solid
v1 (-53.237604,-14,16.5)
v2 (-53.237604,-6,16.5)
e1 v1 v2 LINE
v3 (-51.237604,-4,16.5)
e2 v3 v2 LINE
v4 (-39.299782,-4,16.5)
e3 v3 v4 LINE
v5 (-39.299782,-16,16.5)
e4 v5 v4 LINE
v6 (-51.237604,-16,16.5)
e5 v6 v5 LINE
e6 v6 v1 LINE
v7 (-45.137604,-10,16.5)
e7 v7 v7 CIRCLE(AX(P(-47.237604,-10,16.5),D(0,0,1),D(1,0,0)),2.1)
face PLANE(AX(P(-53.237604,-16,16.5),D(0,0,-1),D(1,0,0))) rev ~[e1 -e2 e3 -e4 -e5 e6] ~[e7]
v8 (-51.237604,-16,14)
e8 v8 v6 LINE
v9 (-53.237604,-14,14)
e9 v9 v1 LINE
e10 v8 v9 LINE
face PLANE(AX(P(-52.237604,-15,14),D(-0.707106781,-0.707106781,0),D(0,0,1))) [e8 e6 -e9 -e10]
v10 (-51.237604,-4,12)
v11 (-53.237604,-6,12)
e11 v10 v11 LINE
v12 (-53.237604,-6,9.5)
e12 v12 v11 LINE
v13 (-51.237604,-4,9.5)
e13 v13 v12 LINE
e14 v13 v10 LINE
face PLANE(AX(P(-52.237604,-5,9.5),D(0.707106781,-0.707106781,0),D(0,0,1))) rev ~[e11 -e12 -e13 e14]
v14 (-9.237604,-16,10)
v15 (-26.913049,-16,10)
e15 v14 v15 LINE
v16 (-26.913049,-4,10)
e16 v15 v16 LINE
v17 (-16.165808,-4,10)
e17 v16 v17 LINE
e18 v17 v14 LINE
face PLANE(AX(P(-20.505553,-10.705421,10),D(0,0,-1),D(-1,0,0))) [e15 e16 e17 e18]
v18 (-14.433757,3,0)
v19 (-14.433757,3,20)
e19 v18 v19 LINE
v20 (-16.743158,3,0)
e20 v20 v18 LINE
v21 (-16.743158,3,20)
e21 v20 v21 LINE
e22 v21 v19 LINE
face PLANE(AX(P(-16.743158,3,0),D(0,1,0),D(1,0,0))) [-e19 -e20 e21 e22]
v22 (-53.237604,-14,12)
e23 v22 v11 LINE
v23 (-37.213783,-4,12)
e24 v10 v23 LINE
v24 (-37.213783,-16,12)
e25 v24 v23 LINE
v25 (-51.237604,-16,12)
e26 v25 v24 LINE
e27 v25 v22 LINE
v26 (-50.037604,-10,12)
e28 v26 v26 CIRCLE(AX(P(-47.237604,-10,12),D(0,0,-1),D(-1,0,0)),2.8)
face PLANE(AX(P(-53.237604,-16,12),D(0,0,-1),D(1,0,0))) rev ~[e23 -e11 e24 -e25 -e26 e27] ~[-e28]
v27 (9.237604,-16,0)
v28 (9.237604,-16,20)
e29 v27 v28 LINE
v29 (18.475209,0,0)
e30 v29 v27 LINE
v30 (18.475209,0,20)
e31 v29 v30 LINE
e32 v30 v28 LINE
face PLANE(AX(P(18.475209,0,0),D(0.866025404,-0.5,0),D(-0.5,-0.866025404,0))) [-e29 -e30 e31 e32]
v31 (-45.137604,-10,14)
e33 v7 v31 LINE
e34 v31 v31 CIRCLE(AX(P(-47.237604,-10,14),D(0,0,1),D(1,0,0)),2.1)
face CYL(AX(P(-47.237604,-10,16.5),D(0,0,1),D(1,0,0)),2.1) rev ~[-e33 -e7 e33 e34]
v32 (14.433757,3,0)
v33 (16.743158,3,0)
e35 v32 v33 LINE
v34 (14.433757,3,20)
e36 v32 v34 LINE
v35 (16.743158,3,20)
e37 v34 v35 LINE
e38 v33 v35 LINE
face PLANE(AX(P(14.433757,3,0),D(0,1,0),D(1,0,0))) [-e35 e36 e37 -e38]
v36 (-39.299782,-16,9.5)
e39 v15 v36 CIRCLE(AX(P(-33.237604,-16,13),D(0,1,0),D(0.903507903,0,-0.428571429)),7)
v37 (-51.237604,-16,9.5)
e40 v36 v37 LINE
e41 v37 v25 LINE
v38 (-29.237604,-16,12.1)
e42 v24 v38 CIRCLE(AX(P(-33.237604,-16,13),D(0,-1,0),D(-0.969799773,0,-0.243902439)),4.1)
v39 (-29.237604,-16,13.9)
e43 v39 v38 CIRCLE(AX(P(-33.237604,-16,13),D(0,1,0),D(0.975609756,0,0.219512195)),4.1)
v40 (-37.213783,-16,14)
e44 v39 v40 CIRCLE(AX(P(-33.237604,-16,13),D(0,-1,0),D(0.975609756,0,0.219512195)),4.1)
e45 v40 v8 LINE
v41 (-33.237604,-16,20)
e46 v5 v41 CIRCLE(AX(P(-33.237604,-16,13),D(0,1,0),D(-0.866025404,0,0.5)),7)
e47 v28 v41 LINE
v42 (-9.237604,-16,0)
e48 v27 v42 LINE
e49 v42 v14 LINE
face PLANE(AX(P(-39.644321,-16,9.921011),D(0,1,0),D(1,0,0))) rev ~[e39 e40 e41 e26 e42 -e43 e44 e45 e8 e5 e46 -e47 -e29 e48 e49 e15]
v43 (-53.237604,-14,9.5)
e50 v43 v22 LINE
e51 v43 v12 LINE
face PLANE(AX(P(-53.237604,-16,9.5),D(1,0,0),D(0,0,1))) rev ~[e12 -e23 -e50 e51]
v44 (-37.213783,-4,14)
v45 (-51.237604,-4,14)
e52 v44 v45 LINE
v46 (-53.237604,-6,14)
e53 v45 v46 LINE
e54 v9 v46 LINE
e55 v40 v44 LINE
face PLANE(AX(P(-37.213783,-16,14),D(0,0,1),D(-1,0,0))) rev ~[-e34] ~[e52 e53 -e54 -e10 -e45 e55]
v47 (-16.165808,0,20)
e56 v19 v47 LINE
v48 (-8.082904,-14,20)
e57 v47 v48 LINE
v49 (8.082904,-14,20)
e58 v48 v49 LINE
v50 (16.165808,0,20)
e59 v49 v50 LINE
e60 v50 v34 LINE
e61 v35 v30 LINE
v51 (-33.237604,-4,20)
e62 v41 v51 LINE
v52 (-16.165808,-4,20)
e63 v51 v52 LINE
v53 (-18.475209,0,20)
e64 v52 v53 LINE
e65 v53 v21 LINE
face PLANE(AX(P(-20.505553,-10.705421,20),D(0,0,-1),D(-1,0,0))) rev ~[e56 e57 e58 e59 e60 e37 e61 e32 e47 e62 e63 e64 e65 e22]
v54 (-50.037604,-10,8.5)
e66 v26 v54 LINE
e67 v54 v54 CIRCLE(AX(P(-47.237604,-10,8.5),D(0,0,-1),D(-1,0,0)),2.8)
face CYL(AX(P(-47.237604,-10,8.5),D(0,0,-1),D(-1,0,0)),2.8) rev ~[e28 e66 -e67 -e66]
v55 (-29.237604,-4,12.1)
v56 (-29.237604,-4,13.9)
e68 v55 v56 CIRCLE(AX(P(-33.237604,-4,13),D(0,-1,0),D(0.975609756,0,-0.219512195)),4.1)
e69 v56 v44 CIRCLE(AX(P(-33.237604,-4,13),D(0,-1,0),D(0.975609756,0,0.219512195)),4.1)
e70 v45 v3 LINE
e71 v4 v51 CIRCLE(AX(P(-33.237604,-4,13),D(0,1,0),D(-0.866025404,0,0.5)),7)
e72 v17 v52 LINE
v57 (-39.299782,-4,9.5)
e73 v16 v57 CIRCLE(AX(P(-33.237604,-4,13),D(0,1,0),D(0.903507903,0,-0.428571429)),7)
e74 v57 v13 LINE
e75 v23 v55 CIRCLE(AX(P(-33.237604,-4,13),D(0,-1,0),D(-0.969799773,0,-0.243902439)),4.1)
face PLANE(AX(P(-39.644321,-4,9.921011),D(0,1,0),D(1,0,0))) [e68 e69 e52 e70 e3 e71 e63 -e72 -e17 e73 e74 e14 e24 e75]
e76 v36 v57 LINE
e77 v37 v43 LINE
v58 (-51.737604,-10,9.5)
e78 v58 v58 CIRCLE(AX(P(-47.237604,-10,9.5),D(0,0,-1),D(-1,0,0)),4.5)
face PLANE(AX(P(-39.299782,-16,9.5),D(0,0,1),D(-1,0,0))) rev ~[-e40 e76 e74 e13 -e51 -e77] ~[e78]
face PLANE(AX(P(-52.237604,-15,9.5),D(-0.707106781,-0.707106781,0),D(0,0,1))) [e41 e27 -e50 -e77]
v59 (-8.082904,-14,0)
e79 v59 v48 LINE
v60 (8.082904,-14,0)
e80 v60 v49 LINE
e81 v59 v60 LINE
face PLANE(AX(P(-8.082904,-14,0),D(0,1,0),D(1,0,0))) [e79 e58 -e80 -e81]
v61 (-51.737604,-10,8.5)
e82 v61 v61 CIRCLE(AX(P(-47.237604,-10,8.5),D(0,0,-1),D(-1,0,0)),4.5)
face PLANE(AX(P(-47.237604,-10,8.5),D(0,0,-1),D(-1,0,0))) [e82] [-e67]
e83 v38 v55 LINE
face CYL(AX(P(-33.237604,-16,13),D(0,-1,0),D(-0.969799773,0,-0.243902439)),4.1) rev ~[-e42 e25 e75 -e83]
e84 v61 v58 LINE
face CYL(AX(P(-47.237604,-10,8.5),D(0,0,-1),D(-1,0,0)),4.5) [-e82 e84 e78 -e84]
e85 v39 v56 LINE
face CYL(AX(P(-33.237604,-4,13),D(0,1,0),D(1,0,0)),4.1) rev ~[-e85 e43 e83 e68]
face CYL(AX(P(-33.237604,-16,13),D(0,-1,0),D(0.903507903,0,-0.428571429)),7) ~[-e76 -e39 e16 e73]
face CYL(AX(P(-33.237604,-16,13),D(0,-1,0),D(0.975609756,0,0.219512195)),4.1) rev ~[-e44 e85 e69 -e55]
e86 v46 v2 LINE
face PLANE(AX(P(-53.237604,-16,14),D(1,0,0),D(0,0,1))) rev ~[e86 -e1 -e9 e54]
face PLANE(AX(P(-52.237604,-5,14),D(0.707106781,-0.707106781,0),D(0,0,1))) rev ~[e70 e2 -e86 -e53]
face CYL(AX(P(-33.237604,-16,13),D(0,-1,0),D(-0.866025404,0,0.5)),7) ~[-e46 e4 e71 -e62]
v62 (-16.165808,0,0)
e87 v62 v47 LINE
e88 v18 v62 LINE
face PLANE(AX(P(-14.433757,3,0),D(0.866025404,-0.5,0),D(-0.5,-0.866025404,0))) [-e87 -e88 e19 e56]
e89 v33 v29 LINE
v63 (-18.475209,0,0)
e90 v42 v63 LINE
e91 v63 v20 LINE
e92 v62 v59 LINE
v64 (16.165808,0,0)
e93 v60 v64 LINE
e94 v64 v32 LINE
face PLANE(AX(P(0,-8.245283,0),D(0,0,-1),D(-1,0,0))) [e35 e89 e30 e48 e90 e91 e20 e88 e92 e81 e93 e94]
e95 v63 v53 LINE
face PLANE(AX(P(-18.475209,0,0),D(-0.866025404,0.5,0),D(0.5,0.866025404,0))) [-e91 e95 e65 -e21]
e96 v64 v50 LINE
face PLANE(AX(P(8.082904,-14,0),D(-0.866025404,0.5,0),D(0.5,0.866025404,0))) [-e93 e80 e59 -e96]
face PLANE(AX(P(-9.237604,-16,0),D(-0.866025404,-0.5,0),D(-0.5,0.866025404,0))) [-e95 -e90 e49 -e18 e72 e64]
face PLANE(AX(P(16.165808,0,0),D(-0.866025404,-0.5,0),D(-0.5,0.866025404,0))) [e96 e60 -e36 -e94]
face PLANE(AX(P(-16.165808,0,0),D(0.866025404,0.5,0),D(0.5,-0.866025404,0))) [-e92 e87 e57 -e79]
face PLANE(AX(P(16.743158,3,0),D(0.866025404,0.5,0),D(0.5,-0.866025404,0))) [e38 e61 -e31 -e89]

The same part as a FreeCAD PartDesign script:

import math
import FreeCAD as App
import Part
import Sketcher
Q = App.Units.Quantity


def edges_at(feature, points):
    """Names of the edges that pass closest to the given points."""
    edges = feature.Shape.Edges
    near = lambda p: min(range(len(edges)), key=lambda i: edges[i].distToShape(Part.Vertex(*p))[0])
    return sorted({f"Edge{near(p) + 1}" for p in points})

doc = App.newDocument("Part")
body = doc.addObject("PartDesign::Body", "Body")

# Sketch on XY plane
sketch1 = body.newObject("Sketcher::SketchObject", "Sketch")
sketch1.AttachmentSupport = (doc.getObject("XY_Plane"), [""])
sketch1.MapMode = "FlatFace"
sketch1.addGeometry(Part.LineSegment(App.Vector(-16.165808, 0, 0), App.Vector(-14.433757, 3, 0)), False)
sketch1.addGeometry(Part.LineSegment(App.Vector(-14.433757, 3, 0), App.Vector(-16.743158, 3, 0)), False)
sketch1.addGeometry(Part.LineSegment(App.Vector(-16.743158, 3, 0), App.Vector(-18.475209, 0, 0)), False)
sketch1.addGeometry(Part.LineSegment(App.Vector(-18.475209, 0, 0), App.Vector(-9.237604, -16, 0)), False)
sketch1.addGeometry(Part.LineSegment(App.Vector(-9.237604, -16, 0), App.Vector(9.237604, -16, 0)), False)
sketch1.addGeometry(Part.LineSegment(App.Vector(9.237604, -16, 0), App.Vector(18.475209, 0, 0)), False)
sketch1.addGeometry(Part.LineSegment(App.Vector(18.475209, 0, 0), App.Vector(16.743158, 3, 0)), False)
sketch1.addGeometry(Part.LineSegment(App.Vector(16.743158, 3, 0), App.Vector(14.433757, 3, 0)), False)
sketch1.addGeometry(Part.LineSegment(App.Vector(14.433757, 3, 0), App.Vector(16.165808, 0, 0)), False)
sketch1.addGeometry(Part.LineSegment(App.Vector(16.165808, 0, 0), App.Vector(8.082904, -14, 0)), False)
sketch1.addGeometry(Part.LineSegment(App.Vector(8.082904, -14, 0), App.Vector(-8.082904, -14, 0)), False)
sketch1.addGeometry(Part.LineSegment(App.Vector(-8.082904, -14, 0), App.Vector(-16.165808, 0, 0)), False)
sketch1.addConstraint(Sketcher.Constraint("Coincident", 0, 2, 1, 1))
sketch1.addConstraint(Sketcher.Constraint("Coincident", 1, 2, 2, 1))
sketch1.addConstraint(Sketcher.Constraint("Coincident", 2, 2, 3, 1))
sketch1.addConstraint(Sketcher.Constraint("Coincident", 3, 2, 4, 1))
sketch1.addConstraint(Sketcher.Constraint("Coincident", 4, 2, 5, 1))
sketch1.addConstraint(Sketcher.Constraint("Coincident", 5, 2, 6, 1))
sketch1.addConstraint(Sketcher.Constraint("Coincident", 6, 2, 7, 1))
sketch1.addConstraint(Sketcher.Constraint("Coincident", 7, 2, 8, 1))
sketch1.addConstraint(Sketcher.Constraint("Coincident", 8, 2, 9, 1))
sketch1.addConstraint(Sketcher.Constraint("Coincident", 9, 2, 10, 1))
sketch1.addConstraint(Sketcher.Constraint("Coincident", 10, 2, 11, 1))
sketch1.addConstraint(Sketcher.Constraint("Coincident", 11, 2, 0, 1))
sketch1.addConstraint(Sketcher.Constraint("Horizontal", 1))
sketch1.addConstraint(Sketcher.Constraint("Horizontal", 4))
sketch1.addConstraint(Sketcher.Constraint("Horizontal", 7))
sketch1.addConstraint(Sketcher.Constraint("Horizontal", 10))
sketch1.addConstraint(Sketcher.Constraint("Symmetric", 2, 2, 5, 2, -1, 1))
sketch1.addConstraint(Sketcher.Constraint("Symmetric", 8, 2, 11, 2, -1, 1))
sketch1.addConstraint(Sketcher.Constraint("Symmetric", 1, 2, 6, 2, -2))
sketch1.addConstraint(Sketcher.Constraint("PointOnObject", 2, 2, -1))
sketch1.addConstraint(Sketcher.Constraint("PointOnObject", 8, 2, -1))
sketch1.addConstraint(Sketcher.Constraint("Parallel", 0, 2))
sketch1.addConstraint(Sketcher.Constraint("Parallel", 2, 5))
sketch1.addConstraint(Sketcher.Constraint("Parallel", 3, 6))
sketch1.addConstraint(Sketcher.Constraint("Parallel", 6, 8))
sketch1.addConstraint(Sketcher.Constraint("Parallel", 5, 9))
sketch1.addConstraint(Sketcher.Constraint("Parallel", 8, 11))
sketch1.addConstraint(Sketcher.Constraint("Angle", 0, Q("60 deg")))
sketch1.addConstraint(Sketcher.Constraint("DistanceY", -1, 1, 0, 2, Q("3 mm")))
sketch1.addConstraint(Sketcher.Constraint("DistanceY", 3, 2, -1, 1, Q("16 mm")))
sketch1.addConstraint(Sketcher.Constraint("DistanceY", 9, 2, -1, 1, Q("14 mm")))
sketch1.addConstraint(Sketcher.Constraint("DistanceX", 1, 2, 1, 1, Q("2.309401 mm")))
sketch1.addConstraint(Sketcher.Constraint("DistanceX", 4, 1, 4, 2, Q("18.475209 mm")))
pad1 = body.newObject("PartDesign::Pad", "Pad")
pad1.Profile = sketch1
pad1.Length = 20

# Sketch on XY plane
sketch2 = body.newObject("Sketcher::SketchObject", "Sketch001")
sketch2.AttachmentSupport = (doc.getObject("XY_Plane"), [""])
sketch2.MapMode = "FlatFace"
sketch2.AttachmentOffset = App.Placement(App.Vector(0, 0, 10), App.Rotation())
sketch2.addGeometry(Part.LineSegment(App.Vector(-29.237604, -16, 0), App.Vector(-9.237604, -16, 0)), False)
sketch2.addGeometry(Part.LineSegment(App.Vector(-9.237604, -16, 0), App.Vector(-16.165808, -4, 0)), False)
sketch2.addGeometry(Part.LineSegment(App.Vector(-16.165808, -4, 0), App.Vector(-29.237604, -4, 0)), False)
sketch2.addGeometry(Part.LineSegment(App.Vector(-29.237604, -4, 0), App.Vector(-29.237604, -16, 0)), False)
sketch2.addConstraint(Sketcher.Constraint("Coincident", 0, 2, 1, 1))
sketch2.addConstraint(Sketcher.Constraint("Coincident", 1, 2, 2, 1))
sketch2.addConstraint(Sketcher.Constraint("Coincident", 2, 2, 3, 1))
sketch2.addConstraint(Sketcher.Constraint("Coincident", 3, 2, 0, 1))
sketch2.addConstraint(Sketcher.Constraint("Horizontal", 0))
sketch2.addConstraint(Sketcher.Constraint("Horizontal", 2))
sketch2.addConstraint(Sketcher.Constraint("Vertical", 3))
sketch2.addConstraint(Sketcher.Constraint("DistanceX", 0, 1, 0, 2, Q("20 mm")))
sketch2.addConstraint(Sketcher.Constraint("DistanceY", 3, 2, 3, 1, Q("12 mm")))
sketch2.addConstraint(Sketcher.Constraint("Angle", 1, Q("120 deg")))
sketch2.addConstraint(Sketcher.Constraint("DistanceY", 0, 2, -1, 1, Q("16 mm")))
sketch2.addConstraint(Sketcher.Constraint("DistanceX", 0, 2, -1, 1, Q("9.237604 mm")))
pad2 = body.newObject("PartDesign::Pad", "Pad001")
pad2.Profile = sketch2
pad2.Length = 10

# Sketch on XZ plane
sketch3 = body.newObject("Sketcher::SketchObject", "Sketch002")
sketch3.AttachmentSupport = (doc.getObject("XZ_Plane"), [""])
sketch3.MapMode = "FlatFace"
sketch3.AttachmentOffset = App.Placement(App.Vector(0, 0, 16), App.Rotation())
sketch3.addGeometry(Part.LineSegment(App.Vector(-29.237604, 12.1, 0), App.Vector(-29.237604, 10, 0)), False)
sketch3.addGeometry(Part.LineSegment(App.Vector(-29.237604, 10, 0), App.Vector(-26.913049, 10, 0)), False)
sketch3.addGeometry(Part.ArcOfCircle(Part.Circle(App.Vector(-33.237604, 13, 0), App.Vector(0, 0, 1), 7), math.radians(-150), math.radians(-25.376934)), False)
sketch3.addGeometry(Part.LineSegment(App.Vector(-39.299782, 9.5, 0), App.Vector(-53.237604, 9.5, 0)), False)
sketch3.addGeometry(Part.LineSegment(App.Vector(-53.237604, 9.5, 0), App.Vector(-53.237604, 12, 0)), False)
sketch3.addGeometry(Part.LineSegment(App.Vector(-53.237604, 12, 0), App.Vector(-37.213783, 12, 0)), False)
sketch3.addGeometry(Part.ArcOfCircle(Part.Circle(App.Vector(-33.237604, 13, 0), App.Vector(0, 0, 1), 4.1), math.radians(-165.883019), math.radians(-12.680383)), False)
sketch3.addGeometry(Part.LineSegment(App.Vector(-53.237604, 14, 0), App.Vector(-53.237604, 16.5, 0)), False)
sketch3.addGeometry(Part.LineSegment(App.Vector(-53.237604, 16.5, 0), App.Vector(-39.299782, 16.5, 0)), False)
sketch3.addGeometry(Part.ArcOfCircle(Part.Circle(App.Vector(-33.237604, 13, 0), App.Vector(0, 0, 1), 7), math.radians(90), math.radians(150)), False)
sketch3.addGeometry(Part.LineSegment(App.Vector(-33.237604, 20, 0), App.Vector(-29.237604, 20, 0)), False)
sketch3.addGeometry(Part.LineSegment(App.Vector(-29.237604, 20, 0), App.Vector(-29.237604, 13.9, 0)), False)
sketch3.addGeometry(Part.ArcOfCircle(Part.Circle(App.Vector(-33.237604, 13, 0), App.Vector(0, 0, 1), 4.1), math.radians(12.680383), math.radians(165.883019)), False)
sketch3.addGeometry(Part.LineSegment(App.Vector(-37.213783, 14, 0), App.Vector(-53.237604, 14, 0)), False)
sketch3.addConstraint(Sketcher.Constraint("Coincident", 0, 2, 1, 1))
sketch3.addConstraint(Sketcher.Constraint("Coincident", 1, 2, 2, 2))
sketch3.addConstraint(Sketcher.Constraint("Coincident", 2, 1, 3, 1))
sketch3.addConstraint(Sketcher.Constraint("Coincident", 3, 2, 4, 1))
sketch3.addConstraint(Sketcher.Constraint("Coincident", 4, 2, 5, 1))
sketch3.addConstraint(Sketcher.Constraint("Coincident", 5, 2, 6, 1))
sketch3.addConstraint(Sketcher.Constraint("Coincident", 6, 2, 0, 1))
sketch3.addConstraint(Sketcher.Constraint("Coincident", 7, 2, 8, 1))
sketch3.addConstraint(Sketcher.Constraint("Coincident", 8, 2, 9, 2))
sketch3.addConstraint(Sketcher.Constraint("Tangent", 9, 1, 10, 1))
sketch3.addConstraint(Sketcher.Constraint("Coincident", 10, 2, 11, 1))
sketch3.addConstraint(Sketcher.Constraint("Coincident", 11, 2, 12, 1))
sketch3.addConstraint(Sketcher.Constraint("Coincident", 12, 2, 13, 1))
sketch3.addConstraint(Sketcher.Constraint("Coincident", 13, 2, 7, 1))
sketch3.addConstraint(Sketcher.Constraint("Vertical", 0))
sketch3.addConstraint(Sketcher.Constraint("Horizontal", 1))
sketch3.addConstraint(Sketcher.Constraint("Horizontal", 3))
sketch3.addConstraint(Sketcher.Constraint("Vertical", 4))
sketch3.addConstraint(Sketcher.Constraint("Horizontal", 5))
sketch3.addConstraint(Sketcher.Constraint("Vertical", 7))
sketch3.addConstraint(Sketcher.Constraint("Horizontal", 8))
sketch3.addConstraint(Sketcher.Constraint("Horizontal", 10))
sketch3.addConstraint(Sketcher.Constraint("Vertical", 11))
sketch3.addConstraint(Sketcher.Constraint("Horizontal", 13))
sketch3.addConstraint(Sketcher.Constraint("Coincident", 6, 3, 2, 3))
sketch3.addConstraint(Sketcher.Constraint("Coincident", 9, 3, 2, 3))
sketch3.addConstraint(Sketcher.Constraint("Coincident", 12, 3, 2, 3))
sketch3.addConstraint(Sketcher.Constraint("Equal", 2, 9))
sketch3.addConstraint(Sketcher.Constraint("Equal", 6, 12))
sketch3.addConstraint(Sketcher.Constraint("Vertical", 4, 2, 7, 2))
sketch3.addConstraint(Sketcher.Constraint("Vertical", 2, 1, 8, 2))
sketch3.addConstraint(Sketcher.Constraint("Vertical", 6, 2, 10, 2))
sketch3.addConstraint(Sketcher.Constraint("Vertical", 5, 2, 12, 2))
sketch3.addConstraint(Sketcher.Constraint("Radius", 2, Q("7 mm")))
sketch3.addConstraint(Sketcher.Constraint("Radius", 6, Q("4.1 mm")))
sketch3.addConstraint(Sketcher.Constraint("DistanceX", 10, 1, 10, 2, Q("4 mm")))
sketch3.addConstraint(Sketcher.Constraint("DistanceY", 0, 2, 0, 1, Q("2.1 mm")))
sketch3.addConstraint(Sketcher.Constraint("DistanceY", 4, 1, 4, 2, Q("2.5 mm")))
sketch3.addConstraint(Sketcher.Constraint("DistanceY", -1, 1, 2, 3, Q("13 mm")))
sketch3.addConstraint(Sketcher.Constraint("DistanceY", -1, 1, 4, 2, Q("12 mm")))
sketch3.addConstraint(Sketcher.Constraint("DistanceX", 3, 2, 6, 3, Q("20 mm")))
sketch3.addConstraint(Sketcher.Constraint("DistanceX", 1, 2, -1, 1, Q("26.913049 mm")))
pad3 = body.newObject("PartDesign::Pad", "Pad002")
pad3.Profile = sketch3
pad3.Length = 12
pad3.Reversed = True

# Sketch on XZ plane
sketch4 = body.newObject("Sketcher::SketchObject", "Sketch003")
sketch4.AttachmentSupport = (doc.getObject("XZ_Plane"), [""])
sketch4.MapMode = "FlatFace"
sketch4.AttachmentOffset = App.Placement(App.Vector(0, 0, 4), App.Rotation())
sketch4.addGeometry(Part.Circle(App.Vector(-33.237604, 13, 0), App.Vector(0, 0, 1), 4.1), False)
sketch4.addConstraint(Sketcher.Constraint("Diameter", 0, Q("8.2 mm")))
sketch4.addConstraint(Sketcher.Constraint("DistanceY", -1, 1, 0, 3, Q("13 mm")))
sketch4.addConstraint(Sketcher.Constraint("DistanceX", 0, 3, -1, 1, Q("33.237604 mm")))
pocket1 = body.newObject("PartDesign::Pocket", "Pocket")
pocket1.Profile = sketch4
pocket1.Type = "ThroughAll"
pocket1.Reversed = True

# Sketch on XY plane
sketch5 = body.newObject("Sketcher::SketchObject", "Sketch004")
sketch5.AttachmentSupport = (doc.getObject("XY_Plane"), [""])
sketch5.MapMode = "FlatFace"
sketch5.AttachmentOffset = App.Placement(App.Vector(0, 0, 16.5), App.Rotation())
sketch5.addGeometry(Part.Circle(App.Vector(-47.237604, -10, 0), App.Vector(0, 0, 1), 2.1), False)
sketch5.addConstraint(Sketcher.Constraint("Diameter", 0, Q("4.2 mm")))
sketch5.addConstraint(Sketcher.Constraint("DistanceY", 0, 3, -1, 1, Q("10 mm")))
sketch5.addConstraint(Sketcher.Constraint("DistanceX", 0, 3, -1, 1, Q("47.237604 mm")))
pocket2 = body.newObject("PartDesign::Pocket", "Pocket001")
pocket2.Profile = sketch5
pocket2.Type = "UpToFirst"

# Sketch on XY plane
sketch6 = body.newObject("Sketcher::SketchObject", "Sketch005")
sketch6.AttachmentSupport = (doc.getObject("XY_Plane"), [""])
sketch6.MapMode = "FlatFace"
sketch6.AttachmentOffset = App.Placement(App.Vector(0, 0, 9.5), App.Rotation())
sketch6.addGeometry(Part.Circle(App.Vector(-47.237604, -10, 0), App.Vector(0, 0, 1), 2.8), False)
sketch6.addConstraint(Sketcher.Constraint("Diameter", 0, Q("5.6 mm")))
sketch6.addConstraint(Sketcher.Constraint("DistanceY", 0, 3, -1, 1, Q("10 mm")))
sketch6.addConstraint(Sketcher.Constraint("DistanceX", 0, 3, -1, 1, Q("47.237604 mm")))
pocket3 = body.newObject("PartDesign::Pocket", "Pocket002")
pocket3.Profile = sketch6
pocket3.Type = "UpToFirst"
pocket3.Reversed = True
doc.recompute()

chamfer = body.newObject("PartDesign::Chamfer", "Chamfer")
chamfer.Base = (pocket3, edges_at(pocket3, [
    (-53.238, -4, 10.75),
    (-53.238, -16, 10.75),
    (-53.238, -4, 15.25),
    (-53.238, -16, 15.25),
]))
chamfer.Size = 2

# Sketch on XY plane
sketch7 = body.newObject("Sketcher::SketchObject", "Sketch006")
sketch7.AttachmentSupport = (doc.getObject("XY_Plane"), [""])
sketch7.MapMode = "FlatFace"
sketch7.AttachmentOffset = App.Placement(App.Vector(0, 0, 8.5), App.Rotation())
sketch7.addGeometry(Part.Circle(App.Vector(-47.237604, -10, 0), App.Vector(0, 0, 1), 4.5), False)
sketch7.addGeometry(Part.Circle(App.Vector(-47.237604, -10, 0), App.Vector(0, 0, 1), 2.8), False)
sketch7.addConstraint(Sketcher.Constraint("Coincident", 1, 3, 0, 3))
sketch7.addConstraint(Sketcher.Constraint("Diameter", 0, Q("9 mm")))
sketch7.addConstraint(Sketcher.Constraint("Diameter", 1, Q("5.6 mm")))
sketch7.addConstraint(Sketcher.Constraint("DistanceY", 0, 3, -1, 1, Q("10 mm")))
sketch7.addConstraint(Sketcher.Constraint("DistanceX", 0, 3, -1, 1, Q("47.237604 mm")))
pad4 = body.newObject("PartDesign::Pad", "Pad003")
pad4.Profile = sketch7
pad4.Length = 1

doc.recompute()
